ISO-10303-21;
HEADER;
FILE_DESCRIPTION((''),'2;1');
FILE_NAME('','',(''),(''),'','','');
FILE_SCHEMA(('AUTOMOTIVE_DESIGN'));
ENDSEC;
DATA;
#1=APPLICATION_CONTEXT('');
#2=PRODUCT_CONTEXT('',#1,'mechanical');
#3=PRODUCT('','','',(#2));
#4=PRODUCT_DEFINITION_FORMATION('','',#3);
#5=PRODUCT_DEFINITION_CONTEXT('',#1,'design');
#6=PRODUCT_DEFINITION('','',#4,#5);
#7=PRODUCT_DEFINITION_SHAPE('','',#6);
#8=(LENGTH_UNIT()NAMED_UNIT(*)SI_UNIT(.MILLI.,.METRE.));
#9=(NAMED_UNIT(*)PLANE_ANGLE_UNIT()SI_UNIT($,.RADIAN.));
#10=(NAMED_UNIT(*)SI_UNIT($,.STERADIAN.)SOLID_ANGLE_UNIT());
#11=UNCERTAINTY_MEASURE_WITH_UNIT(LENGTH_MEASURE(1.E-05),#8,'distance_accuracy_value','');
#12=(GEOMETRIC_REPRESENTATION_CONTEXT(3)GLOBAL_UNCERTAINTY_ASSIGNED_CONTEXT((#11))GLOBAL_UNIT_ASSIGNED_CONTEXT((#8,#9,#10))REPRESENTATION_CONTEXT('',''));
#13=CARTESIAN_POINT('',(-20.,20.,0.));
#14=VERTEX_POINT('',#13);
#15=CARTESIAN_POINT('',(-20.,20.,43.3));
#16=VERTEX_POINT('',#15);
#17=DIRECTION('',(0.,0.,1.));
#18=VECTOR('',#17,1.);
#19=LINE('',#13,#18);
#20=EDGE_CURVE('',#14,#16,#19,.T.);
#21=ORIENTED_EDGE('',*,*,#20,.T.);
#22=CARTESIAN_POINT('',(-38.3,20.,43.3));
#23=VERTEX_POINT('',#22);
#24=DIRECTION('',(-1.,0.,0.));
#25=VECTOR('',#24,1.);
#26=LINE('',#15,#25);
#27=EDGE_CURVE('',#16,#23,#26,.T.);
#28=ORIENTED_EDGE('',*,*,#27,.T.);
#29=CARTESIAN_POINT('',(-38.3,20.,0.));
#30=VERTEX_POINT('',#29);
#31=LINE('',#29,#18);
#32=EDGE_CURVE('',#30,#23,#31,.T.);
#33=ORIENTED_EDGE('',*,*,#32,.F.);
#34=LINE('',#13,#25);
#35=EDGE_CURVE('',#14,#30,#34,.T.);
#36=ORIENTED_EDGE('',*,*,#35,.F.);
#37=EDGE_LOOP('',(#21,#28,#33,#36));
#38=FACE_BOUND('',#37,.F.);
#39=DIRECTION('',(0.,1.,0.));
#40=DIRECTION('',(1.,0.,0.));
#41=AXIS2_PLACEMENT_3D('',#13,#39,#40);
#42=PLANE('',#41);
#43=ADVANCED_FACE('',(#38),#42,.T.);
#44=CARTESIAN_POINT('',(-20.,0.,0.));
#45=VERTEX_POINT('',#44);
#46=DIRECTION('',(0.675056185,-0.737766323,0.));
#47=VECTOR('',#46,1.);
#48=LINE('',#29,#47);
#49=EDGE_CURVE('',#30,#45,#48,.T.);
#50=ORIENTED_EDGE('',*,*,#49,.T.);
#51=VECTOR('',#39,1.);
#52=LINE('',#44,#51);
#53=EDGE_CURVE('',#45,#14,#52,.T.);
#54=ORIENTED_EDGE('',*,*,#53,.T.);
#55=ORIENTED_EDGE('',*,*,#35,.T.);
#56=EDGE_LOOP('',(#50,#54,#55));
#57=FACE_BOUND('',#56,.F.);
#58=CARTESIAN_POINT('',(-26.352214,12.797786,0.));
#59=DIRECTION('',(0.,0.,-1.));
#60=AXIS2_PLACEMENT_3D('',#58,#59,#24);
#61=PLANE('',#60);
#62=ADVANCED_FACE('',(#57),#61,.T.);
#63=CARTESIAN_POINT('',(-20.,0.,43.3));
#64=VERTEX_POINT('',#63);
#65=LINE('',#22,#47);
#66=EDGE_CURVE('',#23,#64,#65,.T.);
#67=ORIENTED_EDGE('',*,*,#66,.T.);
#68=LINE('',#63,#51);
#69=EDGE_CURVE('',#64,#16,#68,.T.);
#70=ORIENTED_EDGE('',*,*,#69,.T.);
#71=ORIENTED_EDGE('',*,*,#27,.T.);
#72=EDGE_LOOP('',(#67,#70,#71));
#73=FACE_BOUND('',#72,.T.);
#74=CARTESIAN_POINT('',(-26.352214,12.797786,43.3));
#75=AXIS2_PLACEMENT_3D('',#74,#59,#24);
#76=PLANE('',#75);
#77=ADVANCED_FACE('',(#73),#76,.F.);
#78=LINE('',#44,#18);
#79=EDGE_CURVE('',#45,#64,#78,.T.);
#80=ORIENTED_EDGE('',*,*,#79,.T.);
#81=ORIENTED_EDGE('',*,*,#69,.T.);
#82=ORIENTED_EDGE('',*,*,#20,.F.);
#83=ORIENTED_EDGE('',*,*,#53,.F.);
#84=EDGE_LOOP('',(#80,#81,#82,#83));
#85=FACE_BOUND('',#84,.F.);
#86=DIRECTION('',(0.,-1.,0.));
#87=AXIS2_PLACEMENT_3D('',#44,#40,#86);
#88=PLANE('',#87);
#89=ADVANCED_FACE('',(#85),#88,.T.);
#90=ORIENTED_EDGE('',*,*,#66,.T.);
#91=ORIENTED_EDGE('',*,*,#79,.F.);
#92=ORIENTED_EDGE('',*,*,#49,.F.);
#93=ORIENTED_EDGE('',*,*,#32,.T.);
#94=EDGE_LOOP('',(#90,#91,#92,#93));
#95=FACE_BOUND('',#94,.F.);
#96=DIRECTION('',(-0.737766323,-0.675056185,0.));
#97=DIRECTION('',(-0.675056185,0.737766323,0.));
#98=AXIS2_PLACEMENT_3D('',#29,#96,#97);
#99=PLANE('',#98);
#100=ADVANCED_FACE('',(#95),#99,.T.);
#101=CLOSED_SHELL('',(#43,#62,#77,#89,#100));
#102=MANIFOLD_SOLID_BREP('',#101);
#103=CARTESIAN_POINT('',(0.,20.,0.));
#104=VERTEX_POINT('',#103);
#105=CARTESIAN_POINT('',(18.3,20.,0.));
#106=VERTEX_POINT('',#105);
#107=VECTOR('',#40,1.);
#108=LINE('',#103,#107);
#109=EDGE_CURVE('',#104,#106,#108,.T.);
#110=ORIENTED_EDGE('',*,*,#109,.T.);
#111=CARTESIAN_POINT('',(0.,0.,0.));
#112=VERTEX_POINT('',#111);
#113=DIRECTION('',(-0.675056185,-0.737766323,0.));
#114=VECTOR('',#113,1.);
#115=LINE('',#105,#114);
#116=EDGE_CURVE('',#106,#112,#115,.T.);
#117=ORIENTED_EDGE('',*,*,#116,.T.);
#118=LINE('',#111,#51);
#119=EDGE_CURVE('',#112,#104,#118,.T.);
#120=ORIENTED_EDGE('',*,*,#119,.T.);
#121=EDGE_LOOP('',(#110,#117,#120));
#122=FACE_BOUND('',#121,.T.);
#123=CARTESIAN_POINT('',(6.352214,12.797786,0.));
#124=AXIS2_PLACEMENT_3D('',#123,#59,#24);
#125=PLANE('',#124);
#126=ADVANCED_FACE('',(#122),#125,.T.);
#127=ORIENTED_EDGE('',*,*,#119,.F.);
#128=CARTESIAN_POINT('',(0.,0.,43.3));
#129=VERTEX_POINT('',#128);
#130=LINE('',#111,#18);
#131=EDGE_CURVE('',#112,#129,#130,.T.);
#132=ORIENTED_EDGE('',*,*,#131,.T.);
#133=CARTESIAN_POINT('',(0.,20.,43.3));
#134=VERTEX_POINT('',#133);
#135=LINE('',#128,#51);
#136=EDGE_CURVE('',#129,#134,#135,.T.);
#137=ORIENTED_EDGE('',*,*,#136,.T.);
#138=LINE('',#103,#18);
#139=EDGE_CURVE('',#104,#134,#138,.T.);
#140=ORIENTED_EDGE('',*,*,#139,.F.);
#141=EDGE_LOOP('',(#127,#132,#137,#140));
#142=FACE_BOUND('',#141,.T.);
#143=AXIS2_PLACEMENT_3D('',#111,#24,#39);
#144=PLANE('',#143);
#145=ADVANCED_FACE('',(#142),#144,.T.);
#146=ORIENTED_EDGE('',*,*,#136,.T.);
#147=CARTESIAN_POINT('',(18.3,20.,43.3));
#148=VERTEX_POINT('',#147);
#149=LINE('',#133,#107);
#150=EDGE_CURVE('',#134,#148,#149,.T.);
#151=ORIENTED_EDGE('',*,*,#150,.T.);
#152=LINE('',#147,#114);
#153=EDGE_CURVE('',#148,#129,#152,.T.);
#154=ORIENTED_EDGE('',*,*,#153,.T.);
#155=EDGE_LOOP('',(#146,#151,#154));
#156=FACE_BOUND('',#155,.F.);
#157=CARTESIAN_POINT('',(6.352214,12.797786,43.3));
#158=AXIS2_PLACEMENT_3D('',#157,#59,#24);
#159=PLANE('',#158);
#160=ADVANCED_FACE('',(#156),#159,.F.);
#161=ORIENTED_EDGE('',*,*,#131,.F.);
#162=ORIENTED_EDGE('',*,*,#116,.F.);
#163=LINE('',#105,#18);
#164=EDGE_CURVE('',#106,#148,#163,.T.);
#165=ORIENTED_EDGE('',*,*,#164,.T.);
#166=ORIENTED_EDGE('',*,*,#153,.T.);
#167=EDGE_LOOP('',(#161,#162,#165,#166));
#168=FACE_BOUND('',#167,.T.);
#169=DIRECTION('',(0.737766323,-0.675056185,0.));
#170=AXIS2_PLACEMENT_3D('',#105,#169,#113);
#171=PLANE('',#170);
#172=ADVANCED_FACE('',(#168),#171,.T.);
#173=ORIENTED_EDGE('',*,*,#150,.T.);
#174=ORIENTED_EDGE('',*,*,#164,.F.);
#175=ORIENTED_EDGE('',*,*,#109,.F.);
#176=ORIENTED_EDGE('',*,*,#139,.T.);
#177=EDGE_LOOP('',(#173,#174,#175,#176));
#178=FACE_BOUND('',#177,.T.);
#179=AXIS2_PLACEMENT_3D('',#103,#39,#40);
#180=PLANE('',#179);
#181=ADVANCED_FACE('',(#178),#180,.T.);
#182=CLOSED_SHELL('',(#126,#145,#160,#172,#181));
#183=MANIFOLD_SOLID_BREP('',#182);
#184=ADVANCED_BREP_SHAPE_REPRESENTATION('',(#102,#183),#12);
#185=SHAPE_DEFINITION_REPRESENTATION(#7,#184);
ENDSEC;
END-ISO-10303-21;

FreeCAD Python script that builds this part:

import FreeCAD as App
import Part
import Sketcher
Q = App.Units.Quantity

doc = App.newDocument("Part")
params = doc.addObject("Spreadsheet::Sheet", "Params")
for row, (alias, value) in enumerate([
    ("sketch1_height", "20 mm"),
    ("sketch1_width", "18.3 mm"),
    ("pad1_length", "43.3 mm"),
], start=1):
    params.set(f"A{row}", alias)
    params.set(f"B{row}", "=" + value)
    params.setAlias(f"B{row}", alias)

body = doc.addObject("PartDesign::Body", "Body")
body.AllowCompound = True

# Sketch on XY plane
sketch1 = body.newObject("Sketcher::SketchObject", "Sketch")
sketch1.AttachmentSupport = (doc.getObject("XY_Plane"), [""])
sketch1.MapMode = "FlatFace"
sketch1.addGeometry([
    Part.LineSegment(App.Vector(18.3, 20, 0), App.Vector(0, 20, 0)),
    Part.LineSegment(App.Vector(0, 20, 0), App.Vector(0, 0, 0)),
    Part.LineSegment(App.Vector(0, 0, 0), App.Vector(18.3, 20, 0)),
], False)
sketch1.addConstraint([
    Sketcher.Constraint("Coincident", 0, 2, 1, 1),
    Sketcher.Constraint("Coincident", 1, 2, 2, 1),
    Sketcher.Constraint("Coincident", 2, 2, 0, 1),
    Sketcher.Constraint("Horizontal", 0),
    Sketcher.Constraint("Vertical", 1),
    Sketcher.Constraint("Coincident", 1, 2, -1, 1),
    Sketcher.Constraint("DistanceY", 1, 2, 1, 1, Q("20 mm")),
    Sketcher.Constraint("DistanceX", 0, 2, 0, 1, Q("18.3 mm")),
])
sketch1.setExpression("Constraints[6]", "Params.sketch1_height")
sketch1.setExpression("Constraints[7]", "Params.sketch1_width")
pad1 = body.newObject("PartDesign::Pad", "Pad")
pad1.Profile = sketch1
pad1.setExpression("Length", "Params.pad1_length")
doc.recompute()

datumplane = body.newObject("PartDesign::Plane", "DatumPlane")
datumplane.AttachmentSupport = (doc.getObject("YZ_Plane"), [""])
datumplane.MapMode = "FlatFace"
datumplane.AttachmentOffset = App.Placement(App.Vector(0, 0, -10), App.Rotation())
mirrored = body.newObject("PartDesign::Mirrored", "Mirrored")
mirrored.Originals = [pad1]
mirrored.MirrorPlane = (datumplane, [""])
body.Tip = mirrored

doc.recompute()
